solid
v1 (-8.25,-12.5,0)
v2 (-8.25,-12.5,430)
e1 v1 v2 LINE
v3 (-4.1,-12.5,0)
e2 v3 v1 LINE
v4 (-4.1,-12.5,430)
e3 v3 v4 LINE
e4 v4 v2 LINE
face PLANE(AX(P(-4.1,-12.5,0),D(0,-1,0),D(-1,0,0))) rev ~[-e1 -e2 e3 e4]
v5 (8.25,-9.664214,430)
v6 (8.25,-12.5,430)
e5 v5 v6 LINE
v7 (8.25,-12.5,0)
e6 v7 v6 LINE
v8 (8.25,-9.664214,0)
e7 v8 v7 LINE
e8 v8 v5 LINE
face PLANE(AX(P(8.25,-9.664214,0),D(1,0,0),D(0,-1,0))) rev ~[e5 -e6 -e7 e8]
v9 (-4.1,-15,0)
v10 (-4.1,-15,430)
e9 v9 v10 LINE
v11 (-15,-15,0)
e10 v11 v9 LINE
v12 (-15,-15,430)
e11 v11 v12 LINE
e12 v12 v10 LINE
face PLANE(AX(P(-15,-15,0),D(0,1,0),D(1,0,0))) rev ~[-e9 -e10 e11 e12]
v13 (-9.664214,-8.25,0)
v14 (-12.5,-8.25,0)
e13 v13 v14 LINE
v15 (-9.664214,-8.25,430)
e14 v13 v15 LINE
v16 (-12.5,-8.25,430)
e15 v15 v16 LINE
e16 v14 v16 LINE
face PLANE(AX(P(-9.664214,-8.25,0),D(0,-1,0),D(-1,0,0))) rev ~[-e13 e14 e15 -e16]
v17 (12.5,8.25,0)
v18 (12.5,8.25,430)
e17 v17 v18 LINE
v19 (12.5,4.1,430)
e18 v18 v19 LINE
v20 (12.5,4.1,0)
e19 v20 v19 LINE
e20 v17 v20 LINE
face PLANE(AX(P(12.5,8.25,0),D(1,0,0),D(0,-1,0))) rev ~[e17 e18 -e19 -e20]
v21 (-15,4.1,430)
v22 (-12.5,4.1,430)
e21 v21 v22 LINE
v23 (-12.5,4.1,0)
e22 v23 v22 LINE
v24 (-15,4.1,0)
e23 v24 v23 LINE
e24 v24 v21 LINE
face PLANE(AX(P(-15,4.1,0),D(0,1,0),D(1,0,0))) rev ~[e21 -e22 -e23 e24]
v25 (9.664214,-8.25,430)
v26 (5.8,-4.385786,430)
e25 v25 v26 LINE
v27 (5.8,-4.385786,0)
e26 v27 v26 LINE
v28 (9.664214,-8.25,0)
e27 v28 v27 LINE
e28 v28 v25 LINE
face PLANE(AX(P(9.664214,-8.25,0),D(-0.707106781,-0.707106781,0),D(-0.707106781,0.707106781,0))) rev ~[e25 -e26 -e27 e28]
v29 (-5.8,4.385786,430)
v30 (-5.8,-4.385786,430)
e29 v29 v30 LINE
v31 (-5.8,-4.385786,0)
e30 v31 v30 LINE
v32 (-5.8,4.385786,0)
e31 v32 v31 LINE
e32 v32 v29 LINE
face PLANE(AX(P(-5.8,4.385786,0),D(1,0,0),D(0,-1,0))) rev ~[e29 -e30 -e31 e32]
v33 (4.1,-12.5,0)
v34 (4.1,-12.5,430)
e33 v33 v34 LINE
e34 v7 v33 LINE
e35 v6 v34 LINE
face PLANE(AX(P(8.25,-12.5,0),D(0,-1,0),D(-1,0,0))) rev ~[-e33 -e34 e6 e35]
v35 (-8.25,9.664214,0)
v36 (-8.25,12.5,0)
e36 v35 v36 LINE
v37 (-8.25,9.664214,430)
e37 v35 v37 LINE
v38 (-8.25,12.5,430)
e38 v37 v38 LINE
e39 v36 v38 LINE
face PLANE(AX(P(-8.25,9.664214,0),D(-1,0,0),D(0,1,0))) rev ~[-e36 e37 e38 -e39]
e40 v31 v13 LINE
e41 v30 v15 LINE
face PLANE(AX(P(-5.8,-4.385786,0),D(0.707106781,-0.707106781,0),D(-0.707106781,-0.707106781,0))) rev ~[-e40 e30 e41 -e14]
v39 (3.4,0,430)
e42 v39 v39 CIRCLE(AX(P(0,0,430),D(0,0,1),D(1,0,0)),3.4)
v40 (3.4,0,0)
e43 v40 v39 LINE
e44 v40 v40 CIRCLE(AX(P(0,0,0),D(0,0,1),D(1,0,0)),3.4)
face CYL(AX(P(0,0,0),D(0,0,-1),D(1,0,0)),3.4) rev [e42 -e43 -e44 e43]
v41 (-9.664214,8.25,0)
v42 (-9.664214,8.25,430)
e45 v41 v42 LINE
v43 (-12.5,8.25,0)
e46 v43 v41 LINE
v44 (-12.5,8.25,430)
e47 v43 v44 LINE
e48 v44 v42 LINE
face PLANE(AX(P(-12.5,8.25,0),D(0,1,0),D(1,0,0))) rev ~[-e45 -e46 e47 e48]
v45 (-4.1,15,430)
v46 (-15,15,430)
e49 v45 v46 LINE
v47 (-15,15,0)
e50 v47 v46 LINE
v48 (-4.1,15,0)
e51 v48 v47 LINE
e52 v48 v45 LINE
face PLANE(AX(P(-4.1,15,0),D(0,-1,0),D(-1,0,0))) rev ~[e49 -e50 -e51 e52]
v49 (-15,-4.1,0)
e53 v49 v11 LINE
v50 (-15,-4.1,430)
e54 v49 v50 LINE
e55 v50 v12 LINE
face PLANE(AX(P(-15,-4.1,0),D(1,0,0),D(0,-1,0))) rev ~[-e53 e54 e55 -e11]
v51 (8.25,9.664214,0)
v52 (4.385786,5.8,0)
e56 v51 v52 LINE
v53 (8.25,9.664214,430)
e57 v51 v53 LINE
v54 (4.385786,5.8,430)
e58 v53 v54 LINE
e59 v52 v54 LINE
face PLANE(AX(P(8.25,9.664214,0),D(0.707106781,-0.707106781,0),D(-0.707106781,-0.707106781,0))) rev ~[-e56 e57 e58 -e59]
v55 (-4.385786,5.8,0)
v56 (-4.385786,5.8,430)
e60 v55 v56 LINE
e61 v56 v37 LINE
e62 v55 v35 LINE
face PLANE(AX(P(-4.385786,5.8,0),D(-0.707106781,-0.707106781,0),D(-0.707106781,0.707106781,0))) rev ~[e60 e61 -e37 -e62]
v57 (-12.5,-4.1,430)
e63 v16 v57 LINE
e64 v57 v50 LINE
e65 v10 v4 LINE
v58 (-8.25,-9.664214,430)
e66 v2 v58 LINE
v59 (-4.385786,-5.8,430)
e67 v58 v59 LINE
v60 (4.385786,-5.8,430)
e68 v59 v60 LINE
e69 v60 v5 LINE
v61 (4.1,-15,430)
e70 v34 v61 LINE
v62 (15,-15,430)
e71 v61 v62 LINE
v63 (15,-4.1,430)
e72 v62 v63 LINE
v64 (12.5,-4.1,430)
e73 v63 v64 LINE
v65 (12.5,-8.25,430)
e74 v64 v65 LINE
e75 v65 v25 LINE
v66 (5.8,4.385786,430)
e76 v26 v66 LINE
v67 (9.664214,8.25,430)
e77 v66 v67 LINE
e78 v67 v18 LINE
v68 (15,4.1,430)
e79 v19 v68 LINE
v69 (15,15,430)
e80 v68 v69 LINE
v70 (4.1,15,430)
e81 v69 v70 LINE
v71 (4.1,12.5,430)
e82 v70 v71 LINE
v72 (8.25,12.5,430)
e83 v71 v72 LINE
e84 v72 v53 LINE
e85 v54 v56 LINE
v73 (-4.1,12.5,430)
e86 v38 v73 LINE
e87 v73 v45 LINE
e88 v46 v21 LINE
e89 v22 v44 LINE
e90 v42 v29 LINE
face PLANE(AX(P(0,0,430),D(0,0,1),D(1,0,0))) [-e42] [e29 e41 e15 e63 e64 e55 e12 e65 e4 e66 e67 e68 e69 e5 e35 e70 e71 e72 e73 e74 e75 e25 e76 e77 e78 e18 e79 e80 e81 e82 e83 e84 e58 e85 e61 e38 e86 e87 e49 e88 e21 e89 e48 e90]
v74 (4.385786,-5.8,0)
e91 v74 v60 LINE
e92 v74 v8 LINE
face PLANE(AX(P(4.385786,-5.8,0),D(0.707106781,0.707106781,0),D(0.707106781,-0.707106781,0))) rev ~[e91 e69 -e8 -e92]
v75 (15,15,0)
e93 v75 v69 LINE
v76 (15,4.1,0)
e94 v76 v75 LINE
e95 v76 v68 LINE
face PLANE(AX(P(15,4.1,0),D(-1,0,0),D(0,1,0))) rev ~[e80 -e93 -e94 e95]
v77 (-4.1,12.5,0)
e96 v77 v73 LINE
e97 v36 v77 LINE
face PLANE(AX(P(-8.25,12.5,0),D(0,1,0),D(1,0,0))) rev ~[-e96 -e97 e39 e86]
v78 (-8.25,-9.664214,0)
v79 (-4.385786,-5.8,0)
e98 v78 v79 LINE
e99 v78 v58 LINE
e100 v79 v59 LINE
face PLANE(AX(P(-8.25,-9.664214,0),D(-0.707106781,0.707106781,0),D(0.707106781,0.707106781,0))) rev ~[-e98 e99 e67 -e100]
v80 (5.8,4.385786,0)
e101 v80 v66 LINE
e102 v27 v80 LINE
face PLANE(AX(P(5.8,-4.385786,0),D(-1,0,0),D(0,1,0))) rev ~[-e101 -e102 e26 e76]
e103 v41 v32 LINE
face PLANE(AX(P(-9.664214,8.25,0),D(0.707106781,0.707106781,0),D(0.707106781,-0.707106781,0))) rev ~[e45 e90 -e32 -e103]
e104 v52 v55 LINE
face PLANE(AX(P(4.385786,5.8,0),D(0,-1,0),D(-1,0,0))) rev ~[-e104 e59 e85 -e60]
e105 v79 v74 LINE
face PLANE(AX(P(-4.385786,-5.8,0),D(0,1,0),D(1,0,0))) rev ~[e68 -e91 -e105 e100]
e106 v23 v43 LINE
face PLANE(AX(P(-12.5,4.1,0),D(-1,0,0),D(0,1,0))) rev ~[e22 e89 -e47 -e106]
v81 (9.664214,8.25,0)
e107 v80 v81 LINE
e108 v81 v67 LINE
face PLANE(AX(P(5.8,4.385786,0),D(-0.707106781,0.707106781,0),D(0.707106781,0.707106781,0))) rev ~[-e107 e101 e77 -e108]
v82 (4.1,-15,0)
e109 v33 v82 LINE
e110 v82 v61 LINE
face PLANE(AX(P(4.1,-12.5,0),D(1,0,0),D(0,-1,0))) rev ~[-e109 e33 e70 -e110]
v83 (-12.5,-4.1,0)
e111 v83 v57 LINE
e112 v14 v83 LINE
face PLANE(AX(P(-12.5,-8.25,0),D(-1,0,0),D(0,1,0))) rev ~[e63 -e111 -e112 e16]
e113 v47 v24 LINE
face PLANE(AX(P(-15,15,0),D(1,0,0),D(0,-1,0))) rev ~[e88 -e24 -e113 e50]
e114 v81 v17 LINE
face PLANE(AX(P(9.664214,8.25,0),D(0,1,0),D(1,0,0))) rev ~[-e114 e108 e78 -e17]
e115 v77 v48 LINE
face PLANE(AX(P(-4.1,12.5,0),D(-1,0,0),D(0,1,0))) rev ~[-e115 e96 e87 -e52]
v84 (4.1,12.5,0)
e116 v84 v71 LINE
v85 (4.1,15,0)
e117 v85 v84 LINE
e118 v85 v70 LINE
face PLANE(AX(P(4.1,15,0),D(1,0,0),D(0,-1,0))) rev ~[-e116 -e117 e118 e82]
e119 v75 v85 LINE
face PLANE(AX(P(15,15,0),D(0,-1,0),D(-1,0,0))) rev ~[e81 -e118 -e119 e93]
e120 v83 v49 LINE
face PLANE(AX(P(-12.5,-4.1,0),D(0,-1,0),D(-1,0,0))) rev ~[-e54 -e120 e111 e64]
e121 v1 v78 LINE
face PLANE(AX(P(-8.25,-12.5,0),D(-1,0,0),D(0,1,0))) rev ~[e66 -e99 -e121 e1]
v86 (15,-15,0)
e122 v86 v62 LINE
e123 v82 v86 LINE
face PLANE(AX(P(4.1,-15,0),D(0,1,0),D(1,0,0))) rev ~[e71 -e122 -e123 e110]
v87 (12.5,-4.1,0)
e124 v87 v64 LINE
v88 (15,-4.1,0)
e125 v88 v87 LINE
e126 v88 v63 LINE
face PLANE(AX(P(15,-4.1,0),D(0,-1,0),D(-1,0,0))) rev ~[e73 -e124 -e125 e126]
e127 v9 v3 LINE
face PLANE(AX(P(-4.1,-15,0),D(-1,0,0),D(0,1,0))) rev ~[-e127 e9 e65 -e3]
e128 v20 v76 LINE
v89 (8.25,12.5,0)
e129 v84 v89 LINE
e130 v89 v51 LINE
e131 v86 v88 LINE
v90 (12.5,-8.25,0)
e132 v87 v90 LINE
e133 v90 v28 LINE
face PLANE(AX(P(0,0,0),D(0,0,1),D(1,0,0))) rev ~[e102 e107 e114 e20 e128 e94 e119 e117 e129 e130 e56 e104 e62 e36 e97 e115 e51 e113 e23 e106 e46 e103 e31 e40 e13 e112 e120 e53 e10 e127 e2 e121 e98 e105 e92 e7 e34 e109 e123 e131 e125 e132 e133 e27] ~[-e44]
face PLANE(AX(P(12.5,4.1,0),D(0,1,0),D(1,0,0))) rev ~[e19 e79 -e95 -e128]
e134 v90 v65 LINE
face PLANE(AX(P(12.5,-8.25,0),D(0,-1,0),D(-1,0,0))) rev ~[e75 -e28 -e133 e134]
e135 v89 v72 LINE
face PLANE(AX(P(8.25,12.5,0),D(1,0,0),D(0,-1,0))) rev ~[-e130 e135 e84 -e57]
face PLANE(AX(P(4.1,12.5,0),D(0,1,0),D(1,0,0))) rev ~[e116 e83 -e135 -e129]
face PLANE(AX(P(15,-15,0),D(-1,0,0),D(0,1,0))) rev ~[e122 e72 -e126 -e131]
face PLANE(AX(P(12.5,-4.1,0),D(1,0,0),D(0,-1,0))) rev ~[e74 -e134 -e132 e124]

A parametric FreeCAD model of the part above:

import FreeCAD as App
import Part
import Sketcher

V = App.Vector
Q = App.Units.Quantity

doc = App.newDocument("Part")
body = doc.addObject("PartDesign::Body", "Body")

sketch1 = body.newObject("Sketcher::SketchObject", "Sketch")
sketch1.AttachmentSupport = (doc.getObject("XY_Plane"), [""])
sketch1.MapMode = "FlatFace"
sketch1.addGeometry(Part.LineSegment(V(-4.1, 12.5, 0), V(-4.1, 15, 0)), False)
sketch1.addGeometry(Part.LineSegment(V(-4.1, 15, 0), V(-15, 15, 0)), False)
sketch1.addGeometry(Part.LineSegment(V(-15, 15, 0), V(-15, 4.1, 0)), False)
sketch1.addGeometry(Part.LineSegment(V(-15, 4.1, 0), V(-12.5, 4.1, 0)), False)
sketch1.addGeometry(Part.LineSegment(V(-12.5, 4.1, 0), V(-12.5, 8.2, 0)), False)
sketch1.addGeometry(Part.LineSegment(V(-12.5, 8.2, 0), V(-9.7, 8.2, 0)), False)
sketch1.addGeometry(Part.LineSegment(V(-9.7, 8.2, 0), V(-5.8, 4.4, 0)), False)
sketch1.addGeometry(Part.LineSegment(V(-5.8, 4.4, 0), V(-5.8, -4.4, 0)), False)
sketch1.addGeometry(Part.LineSegment(V(-5.8, -4.4, 0), V(-9.7, -8.2, 0)), False)
sketch1.addGeometry(Part.LineSegment(V(-9.7, -8.2, 0), V(-12.5, -8.2, 0)), False)
sketch1.addGeometry(Part.LineSegment(V(-12.5, -8.2, 0), V(-12.5, -4.1, 0)), False)
sketch1.addGeometry(Part.LineSegment(V(-12.5, -4.1, 0), V(-15, -4.1, 0)), False)
sketch1.addGeometry(Part.LineSegment(V(-15, -4.1, 0), V(-15, -15, 0)), False)
sketch1.addGeometry(Part.LineSegment(V(-15, -15, 0), V(-4.1, -15, 0)), False)
sketch1.addGeometry(Part.LineSegment(V(-4.1, -15, 0), V(-4.1, -12.5, 0)), False)
sketch1.addGeometry(Part.LineSegment(V(-4.1, -12.5, 0), V(-8.2, -12.5, 0)), False)
sketch1.addGeometry(Part.LineSegment(V(-8.2, -12.5, 0), V(-8.2, -9.7, 0)), False)
sketch1.addGeometry(Part.LineSegment(V(-8.2, -9.7, 0), V(-4.4, -5.8, 0)), False)
sketch1.addGeometry(Part.LineSegment(V(-4.4, -5.8, 0), V(4.4, -5.8, 0)), False)
sketch1.addGeometry(Part.LineSegment(V(4.4, -5.8, 0), V(8.2, -9.7, 0)), False)
sketch1.addGeometry(Part.LineSegment(V(8.2, -9.7, 0), V(8.2, -12.5, 0)), False)
sketch1.addGeometry(Part.LineSegment(V(8.2, -12.5, 0), V(4.1, -12.5, 0)), False)
sketch1.addGeometry(Part.LineSegment(V(4.1, -12.5, 0), V(4.1, -15, 0)), False)
sketch1.addGeometry(Part.LineSegment(V(4.1, -15, 0), V(15, -15, 0)), False)
sketch1.addGeometry(Part.LineSegment(V(15, -15, 0), V(15, -4.1, 0)), False)
sketch1.addGeometry(Part.LineSegment(V(15, -4.1, 0), V(12.5, -4.1, 0)), False)
sketch1.addGeometry(Part.LineSegment(V(12.5, -4.1, 0), V(12.5, -8.2, 0)), False)
sketch1.addGeometry(Part.LineSegment(V(12.5, -8.2, 0), V(9.7, -8.2, 0)), False)
sketch1.addGeometry(Part.LineSegment(V(9.7, -8.2, 0), V(5.8, -4.4, 0)), False)
sketch1.addGeometry(Part.LineSegment(V(5.8, -4.4, 0), V(5.8, 4.4, 0)), False)
sketch1.addGeometry(Part.LineSegment(V(5.8, 4.4, 0), V(9.7, 8.2, 0)), False)
sketch1.addGeometry(Part.LineSegment(V(9.7, 8.2, 0), V(12.5, 8.2, 0)), False)
sketch1.addGeometry(Part.LineSegment(V(12.5, 8.2, 0), V(12.5, 4.1, 0)), False)
sketch1.addGeometry(Part.LineSegment(V(12.5, 4.1, 0), V(15, 4.1, 0)), False)
sketch1.addGeometry(Part.LineSegment(V(15, 4.1, 0), V(15, 15, 0)), False)
sketch1.addGeometry(Part.LineSegment(V(15, 15, 0), V(4.1, 15, 0)), False)
sketch1.addGeometry(Part.LineSegment(V(4.1, 15, 0), V(4.1, 12.5, 0)), False)
sketch1.addGeometry(Part.LineSegment(V(4.1, 12.5, 0), V(8.2, 12.5, 0)), False)
sketch1.addGeometry(Part.LineSegment(V(8.2, 12.5, 0), V(8.2, 9.7, 0)), False)
sketch1.addGeometry(Part.LineSegment(V(8.2, 9.7, 0), V(4.4, 5.8, 0)), False)
sketch1.addGeometry(Part.LineSegment(V(4.4, 5.8, 0), V(-4.4, 5.8, 0)), False)
sketch1.addGeometry(Part.LineSegment(V(-4.4, 5.8, 0), V(-8.2, 9.7, 0)), False)
sketch1.addGeometry(Part.LineSegment(V(-8.2, 9.7, 0), V(-8.2, 12.5, 0)), False)
sketch1.addGeometry(Part.LineSegment(V(-8.2, 12.5, 0), V(-4.1, 12.5, 0)), False)
sketch1.addGeometry(Part.Circle(V(0, 0, 0), V(0, 0, 1), 3.4), False)
sketch1.addConstraint(Sketcher.Constraint("Coincident", 0, 2, 1, 1))
sketch1.addConstraint(Sketcher.Constraint("Coincident", 1, 2, 2, 1))
sketch1.addConstraint(Sketcher.Constraint("Coincident", 2, 2, 3, 1))
sketch1.addConstraint(Sketcher.Constraint("Coincident", 3, 2, 4, 1))
sketch1.addConstraint(Sketcher.Constraint("Coincident", 4, 2, 5, 1))
sketch1.addConstraint(Sketcher.Constraint("Coincident", 5, 2, 6, 1))
sketch1.addConstraint(Sketcher.Constraint("Coincident", 6, 2, 7, 1))
sketch1.addConstraint(Sketcher.Constraint("Coincident", 7, 2, 8, 1))
sketch1.addConstraint(Sketcher.Constraint("Coincident", 8, 2, 9, 1))
sketch1.addConstraint(Sketcher.Constraint("Coincident", 9, 2, 10, 1))
sketch1.addConstraint(Sketcher.Constraint("Coincident", 10, 2, 11, 1))
sketch1.addConstraint(Sketcher.Constraint("Coincident", 11, 2, 12, 1))
sketch1.addConstraint(Sketcher.Constraint("Coincident", 12, 2, 13, 1))
sketch1.addConstraint(Sketcher.Constraint("Coincident", 13, 2, 14, 1))
sketch1.addConstraint(Sketcher.Constraint("Coincident", 14, 2, 15, 1))
sketch1.addConstraint(Sketcher.Constraint("Coincident", 15, 2, 16, 1))
sketch1.addConstraint(Sketcher.Constraint("Coincident", 16, 2, 17, 1))
sketch1.addConstraint(Sketcher.Constraint("Coincident", 17, 2, 18, 1))
sketch1.addConstraint(Sketcher.Constraint("Coincident", 18, 2, 19, 1))
sketch1.addConstraint(Sketcher.Constraint("Coincident", 19, 2, 20, 1))
sketch1.addConstraint(Sketcher.Constraint("Coincident", 20, 2, 21, 1))
sketch1.addConstraint(Sketcher.Constraint("Coincident", 21, 2, 22, 1))
sketch1.addConstraint(Sketcher.Constraint("Coincident", 22, 2, 23, 1))
sketch1.addConstraint(Sketcher.Constraint("Coincident", 23, 2, 24, 1))
sketch1.addConstraint(Sketcher.Constraint("Coincident", 24, 2, 25, 1))
sketch1.addConstraint(Sketcher.Constraint("Coincident", 25, 2, 26, 1))
sketch1.addConstraint(Sketcher.Constraint("Coincident", 26, 2, 27, 1))
sketch1.addConstraint(Sketcher.Constraint("Coincident", 27, 2, 28, 1))
sketch1.addConstraint(Sketcher.Constraint("Coincident", 28, 2, 29, 1))
sketch1.addConstraint(Sketcher.Constraint("Coincident", 29, 2, 30, 1))
sketch1.addConstraint(Sketcher.Constraint("Coincident", 30, 2, 31, 1))
sketch1.addConstraint(Sketcher.Constraint("Coincident", 31, 2, 32, 1))
sketch1.addConstraint(Sketcher.Constraint("Coincident", 32, 2, 33, 1))
sketch1.addConstraint(Sketcher.Constraint("Coincident", 33, 2, 34, 1))
sketch1.addConstraint(Sketcher.Constraint("Coincident", 34, 2, 35, 1))
sketch1.addConstraint(Sketcher.Constraint("Coincident", 35, 2, 36, 1))
sketch1.addConstraint(Sketcher.Constraint("Coincident", 36, 2, 37, 1))
sketch1.addConstraint(Sketcher.Constraint("Coincident", 37, 2, 38, 1))
sketch1.addConstraint(Sketcher.Constraint("Coincident", 38, 2, 39, 1))
sketch1.addConstraint(Sketcher.Constraint("Coincident", 39, 2, 40, 1))
sketch1.addConstraint(Sketcher.Constraint("Coincident", 40, 2, 41, 1))
sketch1.addConstraint(Sketcher.Constraint("Coincident", 41, 2, 42, 1))
sketch1.addConstraint(Sketcher.Constraint("Coincident", 42, 2, 43, 1))
sketch1.addConstraint(Sketcher.Constraint("Coincident", 43, 2, 0, 1))
sketch1.addConstraint(Sketcher.Constraint("Vertical", 0))
sketch1.addConstraint(Sketcher.Constraint("Horizontal", 1))
sketch1.addConstraint(Sketcher.Constraint("Vertical", 2))
sketch1.addConstraint(Sketcher.Constraint("Horizontal", 3))
sketch1.addConstraint(Sketcher.Constraint("Vertical", 4))
sketch1.addConstraint(Sketcher.Constraint("Horizontal", 5))
sketch1.addConstraint(Sketcher.Constraint("Vertical", 7))
sketch1.addConstraint(Sketcher.Constraint("Horizontal", 9))
sketch1.addConstraint(Sketcher.Constraint("Vertical", 10))
sketch1.addConstraint(Sketcher.Constraint("Horizontal", 11))
sketch1.addConstraint(Sketcher.Constraint("Vertical", 12))
sketch1.addConstraint(Sketcher.Constraint("Horizontal", 13))
sketch1.addConstraint(Sketcher.Constraint("Vertical", 14))
sketch1.addConstraint(Sketcher.Constraint("Horizontal", 15))
sketch1.addConstraint(Sketcher.Constraint("Vertical", 16))
sketch1.addConstraint(Sketcher.Constraint("Horizontal", 18))
sketch1.addConstraint(Sketcher.Constraint("Vertical", 20))
sketch1.addConstraint(Sketcher.Constraint("Horizontal", 21))
sketch1.addConstraint(Sketcher.Constraint("Vertical", 22))
sketch1.addConstraint(Sketcher.Constraint("Horizontal", 23))
sketch1.addConstraint(Sketcher.Constraint("Vertical", 24))
sketch1.addConstraint(Sketcher.Constraint("Horizontal", 25))
sketch1.addConstraint(Sketcher.Constraint("Vertical", 26))
sketch1.addConstraint(Sketcher.Constraint("Horizontal", 27))
sketch1.addConstraint(Sketcher.Constraint("Vertical", 29))
sketch1.addConstraint(Sketcher.Constraint("Horizontal", 31))
sketch1.addConstraint(Sketcher.Constraint("Vertical", 32))
sketch1.addConstraint(Sketcher.Constraint("Horizontal", 33))
sketch1.addConstraint(Sketcher.Constraint("Vertical", 34))
sketch1.addConstraint(Sketcher.Constraint("Horizontal", 35))
sketch1.addConstraint(Sketcher.Constraint("Vertical", 36))
sketch1.addConstraint(Sketcher.Constraint("Horizontal", 37))
sketch1.addConstraint(Sketcher.Constraint("Vertical", 38))
sketch1.addConstraint(Sketcher.Constraint("Horizontal", 40))
sketch1.addConstraint(Sketcher.Constraint("Vertical", 42))
sketch1.addConstraint(Sketcher.Constraint("Horizontal", 43))
sketch1.addConstraint(Sketcher.Constraint("Coincident", 44, 3, -1, 1))
sketch1.addConstraint(Sketcher.Constraint("Symmetric", 0, 2, 22, 2, -1, 1))
sketch1.addConstraint(Sketcher.Constraint("Symmetric", 2, 2, 24, 2, -1, 1))
sketch1.addConstraint(Sketcher.Constraint("Symmetric", 4, 2, 26, 2, -1, 1))
sketch1.addConstraint(Sketcher.Constraint("Symmetric", 6, 2, 28, 2, -1, 1))
sketch1.addConstraint(Sketcher.Constraint("Symmetric", 8, 2, 30, 2, -1, 1))
sketch1.addConstraint(Sketcher.Constraint("Symmetric", 10, 2, 32, 2, -1, 1))
sketch1.addConstraint(Sketcher.Constraint("Symmetric", 12, 2, 34, 2, -1, 1))
sketch1.addConstraint(Sketcher.Constraint("Symmetric", 14, 2, 36, 2, -1, 1))
sketch1.addConstraint(Sketcher.Constraint("Symmetric", 16, 2, 38, 2, -1, 1))
sketch1.addConstraint(Sketcher.Constraint("Symmetric", 17, 2, 39, 2, -1, 1))
sketch1.addConstraint(Sketcher.Constraint("Symmetric", 19, 2, 41, 2, -1, 1))
sketch1.addConstraint(Sketcher.Constraint("Symmetric", 16, 2, 19, 2, -2))
sketch1.addConstraint(Sketcher.Constraint("Symmetric", 14, 2, 21, 2, -2))
sketch1.addConstraint(Sketcher.Constraint("Symmetric", 12, 2, 23, 2, -2))
sketch1.addConstraint(Sketcher.Constraint("Symmetric", 10, 2, 25, 2, -2))
sketch1.addConstraint(Sketcher.Constraint("Symmetric", 8, 2, 27, 2, -2))
sketch1.addConstraint(Sketcher.Constraint("Perpendicular", 6, 8))
sketch1.addConstraint(Sketcher.Constraint("Parallel", 8, 17))
sketch1.addConstraint(Sketcher.Constraint("Perpendicular", 17, 19))
sketch1.addConstraint(Sketcher.Constraint("Parallel", 19, 28))
sketch1.addConstraint(Sketcher.Constraint("Perpendicular", 28, 30))
sketch1.addConstraint(Sketcher.Constraint("Perpendicular", 39, 41))
sketch1.addConstraint(Sketcher.Constraint("Horizontal", 7, 2, 28, 2))
sketch1.addConstraint(Sketcher.Constraint("Horizontal", 37, 2, 42, 2))
sketch1.addConstraint(Sketcher.Constraint("Equal", 33, 0))
sketch1.addConstraint(Sketcher.Constraint("Equal", 35, 2))
sketch1.addConstraint(Sketcher.Constraint("Equal", 43, 4))
sketch1.addConstraint(Sketcher.Constraint("Equal", 40, 7))
sketch1.addConstraint(Sketcher.Constraint("Equal", 31, 16))
sketch1.addConstraint(Sketcher.Constraint("Equal", 8, 17))
sketch1.addConstraint(Sketcher.Constraint("Diameter", 44, Q("6.8 mm")))
sketch1.addConstraint(Sketcher.Constraint("DistanceX", 1, 2, 1, 1, Q("10.9 mm")))
sketch1.addConstraint(Sketcher.Constraint("DistanceX", 3, 1, 3, 2, Q("2.5 mm")))
sketch1.addConstraint(Sketcher.Constraint("DistanceY", -1, 1, 0, 2, Q("15 mm")))
sketch1.addConstraint(Sketcher.Constraint("DistanceX", 15, 2, 15, 1, Q("4.15 mm")))
sketch1.addConstraint(Sketcher.Constraint("DistanceX", 6, 2, -1, 1, Q("5.8 mm")))
sketch1.addConstraint(Sketcher.Constraint("DistanceX", 5, 1, 5, 2, Q("2.835786 mm")))
pad1 = body.newObject("PartDesign::Pad", "Pad")
pad1.Profile = sketch1
pad1.Length = 430

doc.recompute()
